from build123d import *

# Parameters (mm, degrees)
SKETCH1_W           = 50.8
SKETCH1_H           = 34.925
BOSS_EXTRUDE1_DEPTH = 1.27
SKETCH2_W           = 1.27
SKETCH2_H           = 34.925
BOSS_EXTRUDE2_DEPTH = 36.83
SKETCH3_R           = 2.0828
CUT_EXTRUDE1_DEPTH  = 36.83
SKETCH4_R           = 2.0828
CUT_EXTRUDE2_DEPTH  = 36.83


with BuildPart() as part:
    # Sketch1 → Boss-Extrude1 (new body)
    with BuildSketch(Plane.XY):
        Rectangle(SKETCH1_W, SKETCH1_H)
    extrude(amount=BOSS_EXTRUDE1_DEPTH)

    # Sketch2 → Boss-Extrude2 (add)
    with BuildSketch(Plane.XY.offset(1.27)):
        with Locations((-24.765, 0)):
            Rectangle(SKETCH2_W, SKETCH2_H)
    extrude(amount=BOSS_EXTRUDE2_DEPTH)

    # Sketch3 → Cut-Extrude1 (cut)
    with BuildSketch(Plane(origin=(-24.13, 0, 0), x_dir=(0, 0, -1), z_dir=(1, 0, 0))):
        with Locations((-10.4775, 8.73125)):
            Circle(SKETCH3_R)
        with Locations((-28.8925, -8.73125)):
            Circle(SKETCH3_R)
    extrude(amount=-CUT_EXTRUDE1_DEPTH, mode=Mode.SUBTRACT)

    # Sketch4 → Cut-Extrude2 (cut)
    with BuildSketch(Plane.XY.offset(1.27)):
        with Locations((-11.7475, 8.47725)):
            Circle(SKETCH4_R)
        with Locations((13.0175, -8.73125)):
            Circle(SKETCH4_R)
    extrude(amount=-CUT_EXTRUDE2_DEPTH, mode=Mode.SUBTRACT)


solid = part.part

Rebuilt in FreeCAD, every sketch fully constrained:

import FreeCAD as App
import Part
import Sketcher
Q = App.Units.Quantity

doc = App.newDocument("Part")
body = doc.addObject("PartDesign::Body", "Body")

sketch1 = body.newObject("Sketcher::SketchObject", "Sketch")
sketch1.AttachmentSupport = (doc.getObject("XY_Plane"), [""])
sketch1.MapMode = "FlatFace"
sketch1.addGeometry(Part.LineSegment(App.Vector(-25, 17, 0), App.Vector(-25, -17, 0)), False)
sketch1.addGeometry(Part.LineSegment(App.Vector(-25, -17, 0), App.Vector(25, -17, 0)), False)
sketch1.addGeometry(Part.LineSegment(App.Vector(25, -17, 0), App.Vector(25, 17, 0)), False)
sketch1.addGeometry(Part.LineSegment(App.Vector(25, 17, 0), App.Vector(-25, 17, 0)), False)
sketch1.addConstraint(Sketcher.Constraint("Coincident", 0, 2, 1, 1))
sketch1.addConstraint(Sketcher.Constraint("Coincident", 1, 2, 2, 1))
sketch1.addConstraint(Sketcher.Constraint("Coincident", 2, 2, 3, 1))
sketch1.addConstraint(Sketcher.Constraint("Coincident", 3, 2, 0, 1))
sketch1.addConstraint(Sketcher.Constraint("Vertical", 0))
sketch1.addConstraint(Sketcher.Constraint("Horizontal", 1))
sketch1.addConstraint(Sketcher.Constraint("Vertical", 2))
sketch1.addConstraint(Sketcher.Constraint("Horizontal", 3))
sketch1.addConstraint(Sketcher.Constraint("Symmetric", 0, 2, 2, 2, -1, 1))
sketch1.addConstraint(Sketcher.Constraint("DistanceX", 1, 1, 1, 2, Q("2 in")))
sketch1.addConstraint(Sketcher.Constraint("DistanceY", 0, 2, 0, 1, Q("1.375 in")))
pad1 = body.newObject("PartDesign::Pad", "Pad")
pad1.Profile = sketch1
pad1.Length = Q("0.05 in")

sketch2 = body.newObject("Sketcher::SketchObject", "Sketch001")
sketch2.AttachmentSupport = (doc.getObject("XY_Plane"), [""])
sketch2.MapMode = "FlatFace"
sketch2.AttachmentOffset = App.Placement(App.Vector(0, 0, 0.05 * 25.4), App.Rotation())
sketch2.addGeometry(Part.LineSegment(App.Vector(-25.4, 17.5, 0), App.Vector(-25.4, -17.5, 0)), False)
sketch2.addGeometry(Part.LineSegment(App.Vector(-25.4, -17.5, 0), App.Vector(-24.1, -17.5, 0)), False)
sketch2.addGeometry(Part.LineSegment(App.Vector(-24.1, -17.5, 0), App.Vector(-24.1, 17.5, 0)), False)
sketch2.addGeometry(Part.LineSegment(App.Vector(-24.1, 17.5, 0), App.Vector(-25.4, 17.5, 0)), False)
sketch2.addConstraint(Sketcher.Constraint("Coincident", 0, 2, 1, 1))
sketch2.addConstraint(Sketcher.Constraint("Coincident", 1, 2, 2, 1))
sketch2.addConstraint(Sketcher.Constraint("Coincident", 2, 2, 3, 1))
sketch2.addConstraint(Sketcher.Constraint("Coincident", 3, 2, 0, 1))
sketch2.addConstraint(Sketcher.Constraint("Vertical", 0))
sketch2.addConstraint(Sketcher.Constraint("Horizontal", 1))
sketch2.addConstraint(Sketcher.Constraint("Vertical", 2))
sketch2.addConstraint(Sketcher.Constraint("Horizontal", 3))
sketch2.addConstraint(Sketcher.Constraint("DistanceX", 0, 2, -1, 1, Q("1 in")))
sketch2.addConstraint(Sketcher.Constraint("DistanceX", 1, 1, 1, 2, Q("0.05 in")))
sketch2.addConstraint(Sketcher.Constraint("DistanceY", 0, 2, 0, 1, Q("1.375 in")))
sketch2.addConstraint(Sketcher.Constraint("DistanceY", 0, 2, -1, 1, Q("0.6875 in")))
pad2 = body.newObject("PartDesign::Pad", "Pad001")
pad2.Profile = sketch2
pad2.Length = Q("1.45 in")

sketch3 = body.newObject("Sketcher::SketchObject", "Sketch002")
sketch3.AttachmentSupport = (doc.getObject("YZ_Plane"), [""])
sketch3.MapMode = "FlatFace"
sketch3.AttachmentOffset = App.Placement(App.Vector(0, 0, -0.95 * 25.4), App.Rotation())
sketch3.addGeometry(Part.Circle(App.Vector(8.7, 10.5, 0), App.Vector(0, 0, 1), 2.1), False)
sketch3.addGeometry(Part.Circle(App.Vector(-8.7, 28.9, 0), App.Vector(0, 0, 1), 2.1), False)
sketch3.addConstraint(Sketcher.Constraint("Equal", 0, 1))
sketch3.addConstraint(Sketcher.Constraint("Diameter", 0, Q("0.164 in")))
sketch3.addConstraint(Sketcher.Constraint("DistanceX", -1, 1, 0, 3, Q("0.34375 in")))
sketch3.addConstraint(Sketcher.Constraint("DistanceX", 1, 3, -1, 1, Q("0.34375 in")))
sketch3.addConstraint(Sketcher.Constraint("DistanceY", 0, 3, 1, 3, Q("0.725 in")))
sketch3.addConstraint(Sketcher.Constraint("DistanceY", -1, 1, 0, 3, Q("0.4125 in")))
pocket1 = body.newObject("PartDesign::Pocket", "Pocket")
pocket1.Profile = sketch3
pocket1.Length = Q("1.45 in")

sketch4 = body.newObject("Sketcher::SketchObject", "Sketch003")
sketch4.AttachmentSupport = (doc.getObject("XY_Plane"), [""])
sketch4.MapMode = "FlatFace"
sketch4.AttachmentOffset = App.Placement(App.Vector(0, 0, 0.05 * 25.4), App.Rotation())
sketch4.addGeometry(Part.Circle(App.Vector(-11.7, 8.5, 0), App.Vector(0, 0, 1), 2.1), False)
sketch4.addGeometry(Part.Circle(App.Vector(13, -8.7, 0), App.Vector(0, 0, 1), 2.1), False)
sketch4.addConstraint(Sketcher.Constraint("Equal", 0, 1))
sketch4.addConstraint(Sketcher.Constraint("Diameter", 0, Q("0.164 in")))
sketch4.addConstraint(Sketcher.Constraint("DistanceY", 1, 3, -1, 1, Q("0.34375 in")))
sketch4.addConstraint(Sketcher.Constraint("DistanceX", 0, 3, 1, 3, Q("0.975 in")))
sketch4.addConstraint(Sketcher.Constraint("DistanceX", 0, 3, -1, 1, Q("0.4625 in")))
sketch4.addConstraint(Sketcher.Constraint("DistanceY", 1, 3, 0, 3, Q("0.6775 in")))
pocket2 = body.newObject("PartDesign::Pocket", "Pocket001")
pocket2.Profile = sketch4
pocket2.Length = Q("1.45 in")

doc.recompute()
